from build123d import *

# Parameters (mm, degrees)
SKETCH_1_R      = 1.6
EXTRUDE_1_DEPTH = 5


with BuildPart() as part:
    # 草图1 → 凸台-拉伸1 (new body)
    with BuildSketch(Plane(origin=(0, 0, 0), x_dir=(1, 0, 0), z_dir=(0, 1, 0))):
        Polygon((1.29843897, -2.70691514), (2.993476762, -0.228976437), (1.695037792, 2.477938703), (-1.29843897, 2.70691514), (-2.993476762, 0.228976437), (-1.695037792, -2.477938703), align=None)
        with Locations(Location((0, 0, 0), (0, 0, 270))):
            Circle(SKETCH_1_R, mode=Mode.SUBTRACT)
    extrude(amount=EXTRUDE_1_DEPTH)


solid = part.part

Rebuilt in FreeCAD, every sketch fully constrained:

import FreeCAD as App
import Part
import Sketcher

V = App.Vector
Q = App.Units.Quantity


def add_polygon(sketch, points):
    """Adds a closed chain of lines whose ends are joined by coincident constraints."""
    first, n = sketch.GeometryCount, len(points)
    for a, b in zip(points, points[1:] + points[:1]):
        sketch.addGeometry(Part.LineSegment(App.Vector(*a, 0), App.Vector(*b, 0)), False)
    for i in range(n):
        sketch.addConstraint(Sketcher.Constraint("Coincident", first + i, 2, first + (i + 1) % n, 1))

doc = App.newDocument("Part")
body = doc.addObject("PartDesign::Body", "Body")

# Sketch on XZ plane
sketch1 = doc.addObject("Sketcher::SketchObject", "Sketch")
body.addObject(sketch1)
sketch1.AttachmentSupport = (doc.XZ_Plane, [""])
sketch1.MapMode = "FlatFace"
add_polygon(sketch1, [(1.3, 2.7), (3, 0.2), (1.7, -2.5), (-1.3, -2.7), (-3, -0.2), (-1.7, 2.5)])  # lines 0-5
sketch1.addGeometry(Part.Circle(V(0, 0, 0), V(0, 0, 1), 1.6), False)  # 6
sketch1.addConstraint(Sketcher.Constraint("Coincident", 6, 3, -1, 1))
sketch1.addConstraint(Sketcher.Constraint("Symmetric", 0, 2, 3, 2, -1, 1))
sketch1.addConstraint(Sketcher.Constraint("Symmetric", 1, 2, 4, 2, -1, 1))
sketch1.addConstraint(Sketcher.Constraint("Symmetric", 2, 2, 5, 2, -1, 1))
sketch1.addConstraint(Sketcher.Constraint("Equal", 0, 1))
sketch1.addConstraint(Sketcher.Constraint("Equal", 1, 2))
sketch1.addConstraint(Sketcher.Constraint("Diameter", 6, Q("3.2 mm")))
sketch1.addConstraint(Sketcher.Constraint("DistanceX", 4, 2, 2, 2, Q("0.396599 mm")))
sketch1.addConstraint(Sketcher.Constraint("Distance", 0, Q("3.002221 mm")))
sketch1.addConstraint(Sketcher.Constraint("DistanceY", 1, 2, -1, 1, Q("2.477939 mm")))
sketch1.addConstraint(Sketcher.Constraint("DistanceX", 2, 2, -1, 1, Q("1.298439 mm")))
pad1 = doc.addObject("PartDesign::Pad", "Pad")
body.addObject(pad1)
pad1.Profile = sketch1
pad1.Length = 5
pad1.Reversed = True

doc.recompute()
